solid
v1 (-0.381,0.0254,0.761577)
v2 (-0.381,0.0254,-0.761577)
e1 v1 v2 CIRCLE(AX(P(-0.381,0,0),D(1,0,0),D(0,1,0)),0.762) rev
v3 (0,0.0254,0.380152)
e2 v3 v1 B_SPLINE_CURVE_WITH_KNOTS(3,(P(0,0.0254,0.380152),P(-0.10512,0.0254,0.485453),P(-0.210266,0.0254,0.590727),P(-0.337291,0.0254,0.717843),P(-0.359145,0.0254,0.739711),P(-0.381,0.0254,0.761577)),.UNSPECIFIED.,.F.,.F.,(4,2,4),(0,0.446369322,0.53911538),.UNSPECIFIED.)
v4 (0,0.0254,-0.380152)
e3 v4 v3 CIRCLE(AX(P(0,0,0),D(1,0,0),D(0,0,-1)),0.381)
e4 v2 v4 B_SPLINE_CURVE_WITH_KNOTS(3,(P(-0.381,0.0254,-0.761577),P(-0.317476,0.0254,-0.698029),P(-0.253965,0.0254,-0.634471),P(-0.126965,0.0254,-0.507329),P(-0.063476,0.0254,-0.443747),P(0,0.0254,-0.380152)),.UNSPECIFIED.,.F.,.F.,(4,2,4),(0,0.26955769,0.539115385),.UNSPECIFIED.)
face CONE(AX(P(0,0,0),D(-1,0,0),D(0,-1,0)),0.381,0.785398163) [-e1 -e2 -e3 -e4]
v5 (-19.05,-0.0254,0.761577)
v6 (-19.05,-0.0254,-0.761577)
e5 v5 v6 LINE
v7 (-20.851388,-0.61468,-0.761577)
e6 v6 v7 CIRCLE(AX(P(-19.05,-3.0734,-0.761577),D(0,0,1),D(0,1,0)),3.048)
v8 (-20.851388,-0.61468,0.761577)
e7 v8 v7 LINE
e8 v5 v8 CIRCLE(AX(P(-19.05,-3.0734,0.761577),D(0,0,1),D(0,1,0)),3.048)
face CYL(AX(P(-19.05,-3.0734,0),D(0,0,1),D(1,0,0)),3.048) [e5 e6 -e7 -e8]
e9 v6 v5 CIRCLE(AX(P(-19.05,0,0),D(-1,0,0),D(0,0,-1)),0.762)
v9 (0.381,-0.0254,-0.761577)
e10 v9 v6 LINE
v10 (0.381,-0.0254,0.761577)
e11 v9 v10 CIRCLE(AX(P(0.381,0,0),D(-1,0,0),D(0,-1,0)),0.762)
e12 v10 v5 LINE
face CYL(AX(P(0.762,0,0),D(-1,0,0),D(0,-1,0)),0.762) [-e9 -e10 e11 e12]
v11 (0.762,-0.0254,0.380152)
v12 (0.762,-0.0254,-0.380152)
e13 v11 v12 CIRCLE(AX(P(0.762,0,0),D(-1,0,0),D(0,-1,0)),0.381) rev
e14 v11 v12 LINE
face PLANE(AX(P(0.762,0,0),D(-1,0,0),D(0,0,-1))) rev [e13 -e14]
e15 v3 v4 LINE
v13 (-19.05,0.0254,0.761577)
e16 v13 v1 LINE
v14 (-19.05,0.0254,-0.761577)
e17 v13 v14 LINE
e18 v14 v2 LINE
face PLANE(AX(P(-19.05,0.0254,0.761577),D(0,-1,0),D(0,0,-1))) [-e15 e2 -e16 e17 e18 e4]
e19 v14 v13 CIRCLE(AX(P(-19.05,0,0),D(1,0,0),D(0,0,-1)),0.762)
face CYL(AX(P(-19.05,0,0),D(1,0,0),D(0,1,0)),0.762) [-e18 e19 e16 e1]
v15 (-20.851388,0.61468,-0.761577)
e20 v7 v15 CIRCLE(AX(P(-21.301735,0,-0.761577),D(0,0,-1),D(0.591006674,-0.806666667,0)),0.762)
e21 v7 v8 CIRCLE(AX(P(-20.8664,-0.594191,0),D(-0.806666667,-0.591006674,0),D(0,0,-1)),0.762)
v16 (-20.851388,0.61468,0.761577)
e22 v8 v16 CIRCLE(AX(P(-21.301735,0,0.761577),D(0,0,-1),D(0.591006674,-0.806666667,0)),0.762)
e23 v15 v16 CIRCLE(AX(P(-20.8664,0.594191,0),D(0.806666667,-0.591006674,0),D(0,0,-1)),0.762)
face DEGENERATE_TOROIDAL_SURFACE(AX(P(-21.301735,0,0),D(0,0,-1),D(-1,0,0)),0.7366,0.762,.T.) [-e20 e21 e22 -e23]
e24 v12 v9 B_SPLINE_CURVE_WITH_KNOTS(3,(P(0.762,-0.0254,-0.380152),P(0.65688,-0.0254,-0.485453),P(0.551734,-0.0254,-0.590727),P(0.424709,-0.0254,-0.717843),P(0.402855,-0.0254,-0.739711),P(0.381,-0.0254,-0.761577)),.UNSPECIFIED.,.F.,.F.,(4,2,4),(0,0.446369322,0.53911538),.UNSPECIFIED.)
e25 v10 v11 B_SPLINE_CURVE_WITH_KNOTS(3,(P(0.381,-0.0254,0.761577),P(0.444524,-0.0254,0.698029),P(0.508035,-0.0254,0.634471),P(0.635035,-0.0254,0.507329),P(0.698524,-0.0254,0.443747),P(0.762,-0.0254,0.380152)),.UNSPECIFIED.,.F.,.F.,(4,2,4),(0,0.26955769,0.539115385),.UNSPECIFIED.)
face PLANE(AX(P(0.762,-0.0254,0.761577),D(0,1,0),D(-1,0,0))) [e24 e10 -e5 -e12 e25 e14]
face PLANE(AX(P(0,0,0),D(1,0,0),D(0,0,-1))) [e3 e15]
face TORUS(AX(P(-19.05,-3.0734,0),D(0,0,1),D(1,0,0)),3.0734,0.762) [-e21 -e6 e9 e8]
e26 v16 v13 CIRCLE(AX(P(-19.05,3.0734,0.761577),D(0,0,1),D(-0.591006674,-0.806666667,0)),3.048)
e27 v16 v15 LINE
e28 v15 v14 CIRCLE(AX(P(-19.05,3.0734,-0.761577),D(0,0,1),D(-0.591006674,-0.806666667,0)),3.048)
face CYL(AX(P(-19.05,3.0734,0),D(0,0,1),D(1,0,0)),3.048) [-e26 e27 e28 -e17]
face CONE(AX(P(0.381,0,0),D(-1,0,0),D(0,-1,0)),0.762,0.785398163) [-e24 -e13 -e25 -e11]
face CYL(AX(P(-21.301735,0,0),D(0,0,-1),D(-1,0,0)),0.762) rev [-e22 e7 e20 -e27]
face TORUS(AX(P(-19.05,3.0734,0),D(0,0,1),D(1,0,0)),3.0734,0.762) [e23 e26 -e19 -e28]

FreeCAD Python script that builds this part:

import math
import FreeCAD as App
import Part
import Sketcher

V = App.Vector
Q = App.Units.Quantity


def edges_at(feature, points):
    """Names of the edges that pass closest to the given points."""
    edges = feature.Shape.Edges
    near = lambda p: min(range(len(edges)), key=lambda i: edges[i].distToShape(Part.Vertex(*p))[0])
    return sorted({f"Edge{near(p) + 1}" for p in points})

doc = App.newDocument("Part")
body = doc.addObject("PartDesign::Body", "Body")

# Sketch on YZ plane
sketch1 = body.newObject("Sketcher::SketchObject", "Sketch")
sketch1.AttachmentSupport = (doc.getObject("YZ_Plane"), [""])
sketch1.MapMode = "FlatFace"
sketch1.addGeometry([
    Part.LineSegment(V(0, 0.8, 0), V(0, -0.8, 0)),
    Part.ArcOfCircle(Part.Circle(V(0, 0, 0), V(0, 0, 1), 0.8), math.radians(-88), math.radians(88)),
], False)
sketch1.addConstraint([
    Sketcher.Constraint("Coincident", 0, 1, 1, 2),
    Sketcher.Constraint("Coincident", 1, 1, 0, 2),
    Sketcher.Constraint("Vertical", 0),
    Sketcher.Constraint("Coincident", 1, 3, -1, 1),
    Sketcher.Constraint("Radius", 1, Q("0.03 in")),
    Sketcher.Constraint("DistanceX", -1, 1, 0, 1, Q("0.001 in")),
])

# Sketch on XY plane
sketch2 = body.newObject("Sketcher::SketchObject", "Sketch001")
sketch2.AttachmentSupport = (doc.getObject("XY_Plane"), [""])
sketch2.MapMode = "FlatFace"
sketch2.addGeometry([
    Part.LineSegment(V(0.8, 0, 0), V(-19.1, 0, 0)),  # 0
    Part.ArcOfCircle(Part.Circle(V(-19.1, -3.1, 0), V(0, 0, 1), 3), math.radians(90), math.radians(126)),  # 1
    Part.ArcOfCircle(Part.Circle(V(-21.3, 0, 0), V(0, 0, 1), 0.8), math.radians(54), math.radians(306)),  # 2
    Part.ArcOfCircle(Part.Circle(V(-19.1, 3.1, 0), V(0, 0, 1), 3), math.radians(-126), math.radians(-90)),  # 3
    Part.LineSegment(V(-19.1, 0, 0), V(0, 0, 0)),  # 4
], False)
sketch2.addConstraint([
    Sketcher.Constraint("Tangent", 0, 2, 1, 1),
    Sketcher.Constraint("Tangent", 1, 2, 2, 2),
    Sketcher.Constraint("Tangent", 2, 1, 3, 1),
    Sketcher.Constraint("Tangent", 3, 2, 4, 1),
    Sketcher.Constraint("Horizontal", 0),
    Sketcher.Constraint("Horizontal", 4),
    Sketcher.Constraint("Equal", 1, 3),
    Sketcher.Constraint("Symmetric", 1, 3, 3, 3, -1),
    Sketcher.Constraint("PointOnObject", 4, 2, -2),
    Sketcher.Constraint("Radius", 1, Q("0.12 in")),
    Sketcher.Constraint("Radius", 2, Q("0.03 in")),
    Sketcher.Constraint("DistanceX", 0, 2, 0, 1, Q("0.78 in")),
    Sketcher.Constraint("DistanceX", 4, 1, 4, 2, Q("0.75 in")),
    Sketcher.Constraint("DistanceY", 1, 3, -1, 1, Q("0.121 in")),
])
doc.recompute()

additivepipe = body.newObject("PartDesign::AdditivePipe", "AdditivePipe")
additivepipe.Profile = sketch1
additivepipe.Spine = (sketch2, ["Edge1", "Edge2", "Edge3", "Edge4", "Edge5"])
doc.recompute()

chamfer = body.newObject("PartDesign::Chamfer", "Chamfer")
chamfer.Base = (additivepipe, edges_at(additivepipe, [(0, 0.762, 0), (0.762, -0.762, 0)]))
chamfer.Size = Q("0.015 in")

doc.recompute()
